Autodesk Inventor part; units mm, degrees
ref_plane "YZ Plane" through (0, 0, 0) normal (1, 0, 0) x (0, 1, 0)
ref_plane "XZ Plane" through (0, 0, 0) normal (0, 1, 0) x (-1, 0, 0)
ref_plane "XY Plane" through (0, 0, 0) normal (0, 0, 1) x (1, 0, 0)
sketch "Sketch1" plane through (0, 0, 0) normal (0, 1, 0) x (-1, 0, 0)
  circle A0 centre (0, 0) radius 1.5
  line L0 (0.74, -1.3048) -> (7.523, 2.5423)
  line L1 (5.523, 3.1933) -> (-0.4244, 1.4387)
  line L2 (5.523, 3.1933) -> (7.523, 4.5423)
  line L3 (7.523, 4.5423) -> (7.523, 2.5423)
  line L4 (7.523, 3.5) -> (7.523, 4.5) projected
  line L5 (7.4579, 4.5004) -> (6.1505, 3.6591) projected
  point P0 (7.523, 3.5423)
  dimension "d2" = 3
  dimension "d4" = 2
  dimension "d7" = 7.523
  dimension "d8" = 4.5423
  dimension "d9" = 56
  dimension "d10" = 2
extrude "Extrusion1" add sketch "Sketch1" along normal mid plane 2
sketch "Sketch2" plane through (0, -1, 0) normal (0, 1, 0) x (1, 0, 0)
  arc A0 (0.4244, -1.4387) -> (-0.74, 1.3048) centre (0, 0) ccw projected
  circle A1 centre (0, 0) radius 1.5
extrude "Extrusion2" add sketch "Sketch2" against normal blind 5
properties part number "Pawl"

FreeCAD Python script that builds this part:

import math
import FreeCAD as App
import Part
import Sketcher
from FreeCAD import Vector
Q = App.Units.Quantity

doc = App.newDocument("Part")
body = doc.addObject("PartDesign::Body", "Body")

sketch1 = body.newObject("Sketcher::SketchObject", "Sketch")
sketch1.AttachmentSupport = (doc.getObject("XZ_Plane"), [""])
sketch1.MapMode = "FlatFace"
sketch1.addGeometry([
    Part.ArcOfCircle(Part.Circle(Vector(0, 0, 0), Vector(0, 0, 1), 1.5), math.radians(-119.559164), math.radians(73.564545)),
    Part.LineSegment(Vector(-0.74, -1.3048, 0), Vector(-7.523, 2.5423, 0)),
    Part.LineSegment(Vector(-7.523, 2.5423, 0), Vector(-7.523, 4.5423, 0)),
    Part.LineSegment(Vector(-7.523, 4.5423, 0), Vector(-5.523, 3.1933, 0)),
    Part.LineSegment(Vector(-5.523, 3.1933, 0), Vector(0.4244, 1.4387, 0)),
], False)
sketch1.addConstraint([
    Sketcher.Constraint("Tangent", 0, 1, 1, 1),
    Sketcher.Constraint("Coincident", 1, 2, 2, 1),
    Sketcher.Constraint("Coincident", 2, 2, 3, 1),
    Sketcher.Constraint("Coincident", 3, 2, 4, 1),
    Sketcher.Constraint("Tangent", 4, 2, 0, 2),
    Sketcher.Constraint("Vertical", 2),
    Sketcher.Constraint("Coincident", 0, 3, -1, 1),
    Sketcher.Constraint("Radius", 0, 1.5),
    Sketcher.Constraint("DistanceY", 2, 1, 2, 2, 2.0),
    Sketcher.Constraint("DistanceX", 1, 2, 3, 2, 2.0),
    Sketcher.Constraint("Angle", 3, Q("-33.9997 deg")),
    Sketcher.Constraint("DistanceX", 1, 2, -1, 1, 7.523),
    Sketcher.Constraint("DistanceY", -1, 1, 2, 2, 4.5423),
])
pad1 = body.newObject("PartDesign::Pad", "Pad")
pad1.Profile = sketch1
pad1.Length = 2
pad1.Midplane = True

sketch2 = body.newObject("Sketcher::SketchObject", "Sketch001")
sketch2.AttachmentSupport = (doc.getObject("XZ_Plane"), [""])
sketch2.MapMode = "FlatFace"
sketch2.AttachmentOffset = App.Placement(Vector(0, 0, 1), App.Rotation())
sketch2.addGeometry([
    Part.ArcOfCircle(Part.Circle(Vector(0, 0, 0), Vector(0, 0, 1), 1.5), math.radians(73.564545), math.radians(240.440836)),
    Part.ArcOfCircle(Part.Circle(Vector(0, 0, 0), Vector(0, 0, 1), 1.5), math.radians(-119.559164), math.radians(73.564545)),
], False)
sketch2.addConstraint([
    Sketcher.Constraint("Tangent", 0, 1, 1, 2),
    Sketcher.Constraint("Coincident", 1, 1, 0, 2),
    Sketcher.Constraint("Coincident", 0, 3, -1, 1),
    Sketcher.Constraint("Radius", 0, 1.5),
    Sketcher.Constraint("DistanceX", 1, 1, -1, 1, 0.74),
    Sketcher.Constraint("DistanceX", -1, 1, 0, 1, 0.4244),
])
pad2 = body.newObject("PartDesign::Pad", "Pad001")
pad2.Profile = sketch2
pad2.Length = 5

doc.recompute()
